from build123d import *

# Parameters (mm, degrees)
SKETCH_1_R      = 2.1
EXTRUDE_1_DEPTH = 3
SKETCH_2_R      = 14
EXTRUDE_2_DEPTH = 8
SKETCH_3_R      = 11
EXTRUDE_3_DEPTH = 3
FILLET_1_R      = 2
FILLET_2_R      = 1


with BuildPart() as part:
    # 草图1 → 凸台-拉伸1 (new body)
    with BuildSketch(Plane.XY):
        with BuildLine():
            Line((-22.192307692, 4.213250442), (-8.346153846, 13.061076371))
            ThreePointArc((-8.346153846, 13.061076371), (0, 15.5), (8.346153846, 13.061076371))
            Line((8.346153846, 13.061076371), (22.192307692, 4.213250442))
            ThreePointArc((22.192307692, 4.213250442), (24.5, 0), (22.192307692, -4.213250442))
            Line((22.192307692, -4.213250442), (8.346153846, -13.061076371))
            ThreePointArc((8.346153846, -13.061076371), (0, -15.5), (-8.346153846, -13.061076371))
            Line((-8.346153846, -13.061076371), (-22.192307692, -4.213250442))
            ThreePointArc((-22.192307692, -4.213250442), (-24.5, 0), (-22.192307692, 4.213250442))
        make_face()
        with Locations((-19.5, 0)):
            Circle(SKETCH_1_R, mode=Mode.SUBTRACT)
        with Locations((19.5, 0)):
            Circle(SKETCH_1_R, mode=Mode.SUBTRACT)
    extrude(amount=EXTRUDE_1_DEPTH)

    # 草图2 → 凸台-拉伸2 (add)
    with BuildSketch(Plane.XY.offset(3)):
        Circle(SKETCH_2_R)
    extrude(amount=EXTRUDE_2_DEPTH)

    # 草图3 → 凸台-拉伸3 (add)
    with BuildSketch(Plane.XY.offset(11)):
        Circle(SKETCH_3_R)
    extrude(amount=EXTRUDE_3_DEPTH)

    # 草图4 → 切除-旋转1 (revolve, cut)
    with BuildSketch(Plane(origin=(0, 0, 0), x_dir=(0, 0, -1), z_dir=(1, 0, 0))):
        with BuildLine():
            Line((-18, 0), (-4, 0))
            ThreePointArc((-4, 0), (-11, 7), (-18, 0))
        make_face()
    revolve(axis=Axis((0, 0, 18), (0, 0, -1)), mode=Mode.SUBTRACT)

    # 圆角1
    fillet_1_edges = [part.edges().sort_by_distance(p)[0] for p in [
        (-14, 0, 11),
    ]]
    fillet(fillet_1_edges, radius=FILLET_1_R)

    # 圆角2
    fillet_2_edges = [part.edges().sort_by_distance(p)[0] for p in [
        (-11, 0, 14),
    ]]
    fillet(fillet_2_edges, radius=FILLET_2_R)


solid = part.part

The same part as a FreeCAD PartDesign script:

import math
import FreeCAD as App
import Part
import Sketcher
from FreeCAD import Vector
Q = App.Units.Quantity


def edges_at(feature, points):
    """Names of the edges that pass closest to the given points."""
    edges = feature.Shape.Edges
    near = lambda p: min(range(len(edges)), key=lambda i: edges[i].distToShape(Part.Vertex(*p))[0])
    return sorted({f"Edge{near(p) + 1}" for p in points})

doc = App.newDocument("Part")
body = doc.addObject("PartDesign::Body", "Body")

# Sketch on XY plane
sketch1 = body.newObject("Sketcher::SketchObject", "Sketch")
sketch1.AttachmentSupport = (doc.getObject("XY_Plane"), [""])
sketch1.MapMode = "FlatFace"
sketch1.addGeometry(Part.LineSegment(Vector(-8.3, 13.1, 0), Vector(-22.2, 4.2, 0)), False)
sketch1.addGeometry(Part.ArcOfCircle(Part.Circle(Vector(-19.5, 0, 0), Vector(0, 0, 1), 5), math.radians(123), math.radians(237)), False)
sketch1.addGeometry(Part.LineSegment(Vector(-22.2, -4.2, 0), Vector(-8.3, -13.1, 0)), False)
sketch1.addGeometry(Part.ArcOfCircle(Part.Circle(Vector(0, 0, 0), Vector(0, 0, 1), 15.5), math.radians(-123), math.radians(-57)), False)
sketch1.addGeometry(Part.LineSegment(Vector(8.3, -13.1, 0), Vector(22.2, -4.2, 0)), False)
sketch1.addGeometry(Part.ArcOfCircle(Part.Circle(Vector(19.5, 0, 0), Vector(0, 0, 1), 5), math.radians(-57), math.radians(57)), False)
sketch1.addGeometry(Part.LineSegment(Vector(22.2, 4.2, 0), Vector(8.3, 13.1, 0)), False)
sketch1.addGeometry(Part.ArcOfCircle(Part.Circle(Vector(0, 0, 0), Vector(0, 0, 1), 15.5), math.radians(57), math.radians(123)), False)
sketch1.addGeometry(Part.Circle(Vector(19.5, 0, 0), Vector(0, 0, 1), 2.1), False)
sketch1.addGeometry(Part.Circle(Vector(-19.5, 0, 0), Vector(0, 0, 1), 2.1), False)
sketch1.addConstraint(Sketcher.Constraint("Tangent", 0, 2, 1, 1))
sketch1.addConstraint(Sketcher.Constraint("Tangent", 1, 2, 2, 1))
sketch1.addConstraint(Sketcher.Constraint("Tangent", 2, 2, 3, 1))
sketch1.addConstraint(Sketcher.Constraint("Tangent", 3, 2, 4, 1))
sketch1.addConstraint(Sketcher.Constraint("Tangent", 4, 2, 5, 1))
sketch1.addConstraint(Sketcher.Constraint("Tangent", 5, 2, 6, 1))
sketch1.addConstraint(Sketcher.Constraint("Tangent", 6, 2, 7, 1))
sketch1.addConstraint(Sketcher.Constraint("Tangent", 7, 2, 0, 1))
sketch1.addConstraint(Sketcher.Constraint("Coincident", 3, 3, -1, 1))
sketch1.addConstraint(Sketcher.Constraint("Coincident", 7, 3, -1, 1))
sketch1.addConstraint(Sketcher.Constraint("Coincident", 8, 3, 5, 3))
sketch1.addConstraint(Sketcher.Constraint("Coincident", 9, 3, 1, 3))
sketch1.addConstraint(Sketcher.Constraint("Equal", 1, 5))
sketch1.addConstraint(Sketcher.Constraint("Equal", 3, 7))
sketch1.addConstraint(Sketcher.Constraint("Equal", 8, 9))
sketch1.addConstraint(Sketcher.Constraint("Symmetric", 1, 3, 5, 3, -1, 1))
sketch1.addConstraint(Sketcher.Constraint("PointOnObject", 1, 3, -1))
sketch1.addConstraint(Sketcher.Constraint("Radius", 1, Q("5 mm")))
sketch1.addConstraint(Sketcher.Constraint("Diameter", 8, Q("4.2 mm")))
sketch1.addConstraint(Sketcher.Constraint("Radius", 3, Q("15.5 mm")))
sketch1.addConstraint(Sketcher.Constraint("DistanceX", 1, 3, 5, 3, Q("39 mm")))
pad1 = body.newObject("PartDesign::Pad", "Pad")
pad1.Profile = sketch1
pad1.Length = 3

# Sketch on XY plane
sketch2 = body.newObject("Sketcher::SketchObject", "Sketch001")
sketch2.AttachmentSupport = (doc.getObject("XY_Plane"), [""])
sketch2.MapMode = "FlatFace"
sketch2.AttachmentOffset = App.Placement(Vector(0, 0, 3), App.Rotation())
sketch2.addGeometry(Part.Circle(Vector(0, 0, 0), Vector(0, 0, 1), 14), False)
sketch2.addConstraint(Sketcher.Constraint("Coincident", 0, 3, -1, 1))
sketch2.addConstraint(Sketcher.Constraint("Diameter", 0, Q("28 mm")))
pad2 = body.newObject("PartDesign::Pad", "Pad001")
pad2.Profile = sketch2
pad2.Length = 8

# Sketch on XY plane
sketch3 = body.newObject("Sketcher::SketchObject", "Sketch002")
sketch3.AttachmentSupport = (doc.getObject("XY_Plane"), [""])
sketch3.MapMode = "FlatFace"
sketch3.AttachmentOffset = App.Placement(Vector(0, 0, 11), App.Rotation())
sketch3.addGeometry(Part.Circle(Vector(0, 0, 0), Vector(0, 0, 1), 11), False)
sketch3.addConstraint(Sketcher.Constraint("Coincident", 0, 3, -1, 1))
sketch3.addConstraint(Sketcher.Constraint("Diameter", 0, Q("22 mm")))
pad3 = body.newObject("PartDesign::Pad", "Pad002")
pad3.Profile = sketch3
pad3.Length = 3

# Sketch on YZ plane
sketch4 = body.newObject("Sketcher::SketchObject", "Sketch003")
sketch4.AttachmentSupport = (doc.getObject("YZ_Plane"), [""])
sketch4.MapMode = "FlatFace"
sketch4.addGeometry(Part.LineSegment(Vector(0, 18, 0), Vector(0, 4, 0)), False)
sketch4.addGeometry(Part.ArcOfCircle(Part.Circle(Vector(0, 11, 0), Vector(0, 0, 1), 7), math.radians(-90), math.radians(90)), False)
sketch4.addConstraint(Sketcher.Constraint("Coincident", 0, 1, 1, 2))
sketch4.addConstraint(Sketcher.Constraint("Coincident", 1, 1, 0, 2))
sketch4.addConstraint(Sketcher.Constraint("Vertical", 0))
sketch4.addConstraint(Sketcher.Constraint("PointOnObject", 1, 3, -2))
sketch4.addConstraint(Sketcher.Constraint("PointOnObject", 0, 1, -2))
sketch4.addConstraint(Sketcher.Constraint("Radius", 1, Q("7 mm")))
sketch4.addConstraint(Sketcher.Constraint("DistanceY", -1, 1, 1, 3, Q("11 mm")))
groove = body.newObject("PartDesign::Groove", "Groove")
groove.Profile = sketch4
groove.ReferenceAxis = (sketch4, ["V_Axis"])
groove.Angle = 360
doc.recompute()

fillet = body.newObject("PartDesign::Fillet", "Fillet")
fillet.Base = (groove, edges_at(groove, [(-14, 0, 11)]))
fillet.Radius = 2
doc.recompute()

fillet2 = body.newObject("PartDesign::Fillet", "Fillet001")
fillet2.Base = (fillet, edges_at(fillet, [(-11, 0, 14)]))
fillet2.Radius = 1

doc.recompute()
